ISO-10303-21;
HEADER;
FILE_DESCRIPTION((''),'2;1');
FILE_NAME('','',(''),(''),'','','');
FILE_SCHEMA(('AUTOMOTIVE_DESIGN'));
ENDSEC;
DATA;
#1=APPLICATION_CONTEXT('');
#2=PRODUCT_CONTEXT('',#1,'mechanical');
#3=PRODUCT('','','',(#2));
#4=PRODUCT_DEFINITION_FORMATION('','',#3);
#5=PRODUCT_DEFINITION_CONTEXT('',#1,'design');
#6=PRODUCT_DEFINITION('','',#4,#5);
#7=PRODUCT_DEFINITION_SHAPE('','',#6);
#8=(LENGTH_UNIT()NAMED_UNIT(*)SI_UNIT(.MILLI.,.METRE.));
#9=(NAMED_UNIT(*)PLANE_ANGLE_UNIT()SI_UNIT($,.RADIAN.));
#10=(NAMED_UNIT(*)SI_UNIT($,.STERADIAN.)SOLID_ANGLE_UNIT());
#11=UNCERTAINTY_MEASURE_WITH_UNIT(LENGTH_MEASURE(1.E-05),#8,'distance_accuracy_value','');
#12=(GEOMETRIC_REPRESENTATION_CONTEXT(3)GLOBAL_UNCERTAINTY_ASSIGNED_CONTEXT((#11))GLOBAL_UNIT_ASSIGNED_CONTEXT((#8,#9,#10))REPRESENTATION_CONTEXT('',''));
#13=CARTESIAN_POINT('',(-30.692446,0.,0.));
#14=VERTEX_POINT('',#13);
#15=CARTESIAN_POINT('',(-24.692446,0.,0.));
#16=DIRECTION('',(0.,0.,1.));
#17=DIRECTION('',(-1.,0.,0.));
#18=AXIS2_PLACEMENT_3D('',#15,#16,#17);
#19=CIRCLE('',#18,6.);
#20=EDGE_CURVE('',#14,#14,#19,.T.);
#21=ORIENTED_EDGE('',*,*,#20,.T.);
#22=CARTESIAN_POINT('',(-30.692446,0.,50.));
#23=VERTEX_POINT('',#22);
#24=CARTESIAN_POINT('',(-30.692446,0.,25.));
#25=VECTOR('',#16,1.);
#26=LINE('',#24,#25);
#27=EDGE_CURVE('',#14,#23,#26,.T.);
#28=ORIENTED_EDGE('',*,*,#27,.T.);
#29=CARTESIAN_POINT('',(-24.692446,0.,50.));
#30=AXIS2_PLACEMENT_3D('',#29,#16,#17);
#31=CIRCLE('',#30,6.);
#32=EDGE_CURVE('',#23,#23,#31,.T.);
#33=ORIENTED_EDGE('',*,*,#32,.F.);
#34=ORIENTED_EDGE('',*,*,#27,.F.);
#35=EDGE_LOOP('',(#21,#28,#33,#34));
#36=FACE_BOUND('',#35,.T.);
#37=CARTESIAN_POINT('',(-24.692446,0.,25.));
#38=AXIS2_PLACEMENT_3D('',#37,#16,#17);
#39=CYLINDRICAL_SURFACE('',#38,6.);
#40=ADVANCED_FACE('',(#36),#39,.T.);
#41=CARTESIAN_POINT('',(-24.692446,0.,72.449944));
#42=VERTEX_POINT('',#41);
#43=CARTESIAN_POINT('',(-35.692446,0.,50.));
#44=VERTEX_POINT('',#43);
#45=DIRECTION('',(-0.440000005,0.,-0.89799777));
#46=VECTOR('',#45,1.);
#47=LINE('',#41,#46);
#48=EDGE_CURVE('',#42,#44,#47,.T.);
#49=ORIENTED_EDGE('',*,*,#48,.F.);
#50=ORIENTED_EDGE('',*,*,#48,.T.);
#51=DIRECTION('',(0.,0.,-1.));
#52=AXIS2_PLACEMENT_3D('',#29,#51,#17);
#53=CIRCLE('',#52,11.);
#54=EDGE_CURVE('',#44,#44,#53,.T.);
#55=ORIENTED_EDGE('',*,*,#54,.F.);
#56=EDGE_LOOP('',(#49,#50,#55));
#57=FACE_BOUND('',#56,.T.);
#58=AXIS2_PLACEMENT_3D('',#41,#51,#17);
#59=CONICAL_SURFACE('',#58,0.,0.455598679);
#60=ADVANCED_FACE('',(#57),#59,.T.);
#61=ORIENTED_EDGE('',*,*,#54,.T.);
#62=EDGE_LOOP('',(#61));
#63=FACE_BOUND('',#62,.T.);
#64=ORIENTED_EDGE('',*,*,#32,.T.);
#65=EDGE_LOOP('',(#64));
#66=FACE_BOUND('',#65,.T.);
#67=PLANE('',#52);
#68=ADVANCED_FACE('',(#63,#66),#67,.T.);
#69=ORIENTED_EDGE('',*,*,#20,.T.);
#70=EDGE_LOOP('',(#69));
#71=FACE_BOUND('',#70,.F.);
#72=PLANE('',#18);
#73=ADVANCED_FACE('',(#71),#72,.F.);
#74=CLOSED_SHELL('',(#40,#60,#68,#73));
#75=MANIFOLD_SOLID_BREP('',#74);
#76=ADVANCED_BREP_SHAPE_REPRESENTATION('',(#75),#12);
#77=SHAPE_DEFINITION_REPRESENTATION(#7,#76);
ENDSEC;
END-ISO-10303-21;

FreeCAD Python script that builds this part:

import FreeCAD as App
import Part
import Sketcher

V = App.Vector
Q = App.Units.Quantity


def add_polygon(sketch, points):
    """Adds a closed chain of lines whose ends are joined by coincident constraints."""
    first, n = sketch.GeometryCount, len(points)
    for a, b in zip(points, points[1:] + points[:1]):
        sketch.addGeometry(Part.LineSegment(App.Vector(*a, 0), App.Vector(*b, 0)), False)
    for i in range(n):
        sketch.addConstraint(Sketcher.Constraint("Coincident", first + i, 2, first + (i + 1) % n, 1))

doc = App.newDocument("Part")
params = doc.addObject("Spreadsheet::Sheet", "Params")
for row, (alias, value) in enumerate([
    ("sketch1_width", "6 mm"),
    ("sketch1_height", "50 mm"),
    ("revolution_angle", "360 deg"),
    ("sketch2_width", "11 mm"),
    ("sketch2_length", "25 mm"),
    ("revolution2_angle", "360 deg"),
], start=1):
    params.set(f"A{row}", alias)
    params.set(f"B{row}", "=" + value)
    params.setAlias(f"B{row}", alias)

body = doc.addObject("PartDesign::Body", "Body")

# Sketch on XZ plane
sketch1 = body.newObject("Sketcher::SketchObject", "Sketch")
sketch1.AttachmentSupport = (doc.getObject("XZ_Plane"), [""])
sketch1.MapMode = "FlatFace"
add_polygon(sketch1, [(-31, 50), (-31, 0), (-25, 0), (-25, 50)])  # lines 0-3
sketch1.addGeometry(Part.LineSegment(V(-25, 0, 0), V(-25, 50, 0)), True)  # axis
sketch1.addConstraint(Sketcher.Constraint("Vertical", 0))
sketch1.addConstraint(Sketcher.Constraint("Horizontal", 1))
sketch1.addConstraint(Sketcher.Constraint("Vertical", 2))
sketch1.addConstraint(Sketcher.Constraint("Horizontal", 3))
sketch1.addConstraint(Sketcher.Constraint("Vertical", 4))
sketch1.addConstraint(Sketcher.Constraint("Coincident", 4, 1, 1, 2))
sketch1.addConstraint(Sketcher.Constraint("PointOnObject", 0, 2, -1))
sketch1.addConstraint(Sketcher.Constraint("Horizontal", 3, 2, 4, 2))
sketch1.addConstraint(Sketcher.Constraint("DistanceX", 1, 1, 1, 2, Q("6 mm")))
sketch1.addConstraint(Sketcher.Constraint("DistanceY", 0, 2, 0, 1, Q("50 mm")))
sketch1.addConstraint(Sketcher.Constraint("DistanceX", 0, 2, -1, 1, Q("30.692446 mm")))
sketch1.setExpression("Constraints[12]", "Params.sketch1_width")
sketch1.setExpression("Constraints[13]", "Params.sketch1_height")
revolution = body.newObject("PartDesign::Revolution", "Revolution")
revolution.Profile = sketch1
revolution.ReferenceAxis = (sketch1, ["Axis0"])
revolution.setExpression("Angle", "Params.revolution_angle")

# Sketch on XZ plane
sketch2 = body.newObject("Sketcher::SketchObject", "Sketch001")
sketch2.AttachmentSupport = (doc.getObject("XZ_Plane"), [""])
sketch2.MapMode = "FlatFace"
add_polygon(sketch2, [(-36, 50), (-25, 50), (-25, 72)])  # lines 0-2
sketch2.addGeometry(Part.LineSegment(V(-25, 72, 0), V(-25, 50, 0)), True)  # axis
sketch2.addConstraint(Sketcher.Constraint("Horizontal", 0))
sketch2.addConstraint(Sketcher.Constraint("Vertical", 1))
sketch2.addConstraint(Sketcher.Constraint("Vertical", 3))
sketch2.addConstraint(Sketcher.Constraint("Coincident", 3, 1, 1, 2))
sketch2.addConstraint(Sketcher.Constraint("Horizontal", 2, 2, 3, 2))
sketch2.addConstraint(Sketcher.Constraint("DistanceX", 0, 1, 0, 2, Q("11 mm")))
sketch2.addConstraint(Sketcher.Constraint("Distance", 2, Q("25 mm")))
sketch2.addConstraint(Sketcher.Constraint("DistanceY", -1, 1, 0, 2, Q("50 mm")))
sketch2.addConstraint(Sketcher.Constraint("DistanceX", 0, 2, -1, 1, Q("24.692446 mm")))
sketch2.setExpression("Constraints[8]", "Params.sketch2_width")
sketch2.setExpression("Constraints[9]", "Params.sketch2_length")
revolution2 = body.newObject("PartDesign::Revolution", "Revolution001")
revolution2.Profile = sketch2
revolution2.ReferenceAxis = (sketch2, ["Axis0"])
revolution2.setExpression("Angle", "Params.revolution2_angle")

doc.recompute()
